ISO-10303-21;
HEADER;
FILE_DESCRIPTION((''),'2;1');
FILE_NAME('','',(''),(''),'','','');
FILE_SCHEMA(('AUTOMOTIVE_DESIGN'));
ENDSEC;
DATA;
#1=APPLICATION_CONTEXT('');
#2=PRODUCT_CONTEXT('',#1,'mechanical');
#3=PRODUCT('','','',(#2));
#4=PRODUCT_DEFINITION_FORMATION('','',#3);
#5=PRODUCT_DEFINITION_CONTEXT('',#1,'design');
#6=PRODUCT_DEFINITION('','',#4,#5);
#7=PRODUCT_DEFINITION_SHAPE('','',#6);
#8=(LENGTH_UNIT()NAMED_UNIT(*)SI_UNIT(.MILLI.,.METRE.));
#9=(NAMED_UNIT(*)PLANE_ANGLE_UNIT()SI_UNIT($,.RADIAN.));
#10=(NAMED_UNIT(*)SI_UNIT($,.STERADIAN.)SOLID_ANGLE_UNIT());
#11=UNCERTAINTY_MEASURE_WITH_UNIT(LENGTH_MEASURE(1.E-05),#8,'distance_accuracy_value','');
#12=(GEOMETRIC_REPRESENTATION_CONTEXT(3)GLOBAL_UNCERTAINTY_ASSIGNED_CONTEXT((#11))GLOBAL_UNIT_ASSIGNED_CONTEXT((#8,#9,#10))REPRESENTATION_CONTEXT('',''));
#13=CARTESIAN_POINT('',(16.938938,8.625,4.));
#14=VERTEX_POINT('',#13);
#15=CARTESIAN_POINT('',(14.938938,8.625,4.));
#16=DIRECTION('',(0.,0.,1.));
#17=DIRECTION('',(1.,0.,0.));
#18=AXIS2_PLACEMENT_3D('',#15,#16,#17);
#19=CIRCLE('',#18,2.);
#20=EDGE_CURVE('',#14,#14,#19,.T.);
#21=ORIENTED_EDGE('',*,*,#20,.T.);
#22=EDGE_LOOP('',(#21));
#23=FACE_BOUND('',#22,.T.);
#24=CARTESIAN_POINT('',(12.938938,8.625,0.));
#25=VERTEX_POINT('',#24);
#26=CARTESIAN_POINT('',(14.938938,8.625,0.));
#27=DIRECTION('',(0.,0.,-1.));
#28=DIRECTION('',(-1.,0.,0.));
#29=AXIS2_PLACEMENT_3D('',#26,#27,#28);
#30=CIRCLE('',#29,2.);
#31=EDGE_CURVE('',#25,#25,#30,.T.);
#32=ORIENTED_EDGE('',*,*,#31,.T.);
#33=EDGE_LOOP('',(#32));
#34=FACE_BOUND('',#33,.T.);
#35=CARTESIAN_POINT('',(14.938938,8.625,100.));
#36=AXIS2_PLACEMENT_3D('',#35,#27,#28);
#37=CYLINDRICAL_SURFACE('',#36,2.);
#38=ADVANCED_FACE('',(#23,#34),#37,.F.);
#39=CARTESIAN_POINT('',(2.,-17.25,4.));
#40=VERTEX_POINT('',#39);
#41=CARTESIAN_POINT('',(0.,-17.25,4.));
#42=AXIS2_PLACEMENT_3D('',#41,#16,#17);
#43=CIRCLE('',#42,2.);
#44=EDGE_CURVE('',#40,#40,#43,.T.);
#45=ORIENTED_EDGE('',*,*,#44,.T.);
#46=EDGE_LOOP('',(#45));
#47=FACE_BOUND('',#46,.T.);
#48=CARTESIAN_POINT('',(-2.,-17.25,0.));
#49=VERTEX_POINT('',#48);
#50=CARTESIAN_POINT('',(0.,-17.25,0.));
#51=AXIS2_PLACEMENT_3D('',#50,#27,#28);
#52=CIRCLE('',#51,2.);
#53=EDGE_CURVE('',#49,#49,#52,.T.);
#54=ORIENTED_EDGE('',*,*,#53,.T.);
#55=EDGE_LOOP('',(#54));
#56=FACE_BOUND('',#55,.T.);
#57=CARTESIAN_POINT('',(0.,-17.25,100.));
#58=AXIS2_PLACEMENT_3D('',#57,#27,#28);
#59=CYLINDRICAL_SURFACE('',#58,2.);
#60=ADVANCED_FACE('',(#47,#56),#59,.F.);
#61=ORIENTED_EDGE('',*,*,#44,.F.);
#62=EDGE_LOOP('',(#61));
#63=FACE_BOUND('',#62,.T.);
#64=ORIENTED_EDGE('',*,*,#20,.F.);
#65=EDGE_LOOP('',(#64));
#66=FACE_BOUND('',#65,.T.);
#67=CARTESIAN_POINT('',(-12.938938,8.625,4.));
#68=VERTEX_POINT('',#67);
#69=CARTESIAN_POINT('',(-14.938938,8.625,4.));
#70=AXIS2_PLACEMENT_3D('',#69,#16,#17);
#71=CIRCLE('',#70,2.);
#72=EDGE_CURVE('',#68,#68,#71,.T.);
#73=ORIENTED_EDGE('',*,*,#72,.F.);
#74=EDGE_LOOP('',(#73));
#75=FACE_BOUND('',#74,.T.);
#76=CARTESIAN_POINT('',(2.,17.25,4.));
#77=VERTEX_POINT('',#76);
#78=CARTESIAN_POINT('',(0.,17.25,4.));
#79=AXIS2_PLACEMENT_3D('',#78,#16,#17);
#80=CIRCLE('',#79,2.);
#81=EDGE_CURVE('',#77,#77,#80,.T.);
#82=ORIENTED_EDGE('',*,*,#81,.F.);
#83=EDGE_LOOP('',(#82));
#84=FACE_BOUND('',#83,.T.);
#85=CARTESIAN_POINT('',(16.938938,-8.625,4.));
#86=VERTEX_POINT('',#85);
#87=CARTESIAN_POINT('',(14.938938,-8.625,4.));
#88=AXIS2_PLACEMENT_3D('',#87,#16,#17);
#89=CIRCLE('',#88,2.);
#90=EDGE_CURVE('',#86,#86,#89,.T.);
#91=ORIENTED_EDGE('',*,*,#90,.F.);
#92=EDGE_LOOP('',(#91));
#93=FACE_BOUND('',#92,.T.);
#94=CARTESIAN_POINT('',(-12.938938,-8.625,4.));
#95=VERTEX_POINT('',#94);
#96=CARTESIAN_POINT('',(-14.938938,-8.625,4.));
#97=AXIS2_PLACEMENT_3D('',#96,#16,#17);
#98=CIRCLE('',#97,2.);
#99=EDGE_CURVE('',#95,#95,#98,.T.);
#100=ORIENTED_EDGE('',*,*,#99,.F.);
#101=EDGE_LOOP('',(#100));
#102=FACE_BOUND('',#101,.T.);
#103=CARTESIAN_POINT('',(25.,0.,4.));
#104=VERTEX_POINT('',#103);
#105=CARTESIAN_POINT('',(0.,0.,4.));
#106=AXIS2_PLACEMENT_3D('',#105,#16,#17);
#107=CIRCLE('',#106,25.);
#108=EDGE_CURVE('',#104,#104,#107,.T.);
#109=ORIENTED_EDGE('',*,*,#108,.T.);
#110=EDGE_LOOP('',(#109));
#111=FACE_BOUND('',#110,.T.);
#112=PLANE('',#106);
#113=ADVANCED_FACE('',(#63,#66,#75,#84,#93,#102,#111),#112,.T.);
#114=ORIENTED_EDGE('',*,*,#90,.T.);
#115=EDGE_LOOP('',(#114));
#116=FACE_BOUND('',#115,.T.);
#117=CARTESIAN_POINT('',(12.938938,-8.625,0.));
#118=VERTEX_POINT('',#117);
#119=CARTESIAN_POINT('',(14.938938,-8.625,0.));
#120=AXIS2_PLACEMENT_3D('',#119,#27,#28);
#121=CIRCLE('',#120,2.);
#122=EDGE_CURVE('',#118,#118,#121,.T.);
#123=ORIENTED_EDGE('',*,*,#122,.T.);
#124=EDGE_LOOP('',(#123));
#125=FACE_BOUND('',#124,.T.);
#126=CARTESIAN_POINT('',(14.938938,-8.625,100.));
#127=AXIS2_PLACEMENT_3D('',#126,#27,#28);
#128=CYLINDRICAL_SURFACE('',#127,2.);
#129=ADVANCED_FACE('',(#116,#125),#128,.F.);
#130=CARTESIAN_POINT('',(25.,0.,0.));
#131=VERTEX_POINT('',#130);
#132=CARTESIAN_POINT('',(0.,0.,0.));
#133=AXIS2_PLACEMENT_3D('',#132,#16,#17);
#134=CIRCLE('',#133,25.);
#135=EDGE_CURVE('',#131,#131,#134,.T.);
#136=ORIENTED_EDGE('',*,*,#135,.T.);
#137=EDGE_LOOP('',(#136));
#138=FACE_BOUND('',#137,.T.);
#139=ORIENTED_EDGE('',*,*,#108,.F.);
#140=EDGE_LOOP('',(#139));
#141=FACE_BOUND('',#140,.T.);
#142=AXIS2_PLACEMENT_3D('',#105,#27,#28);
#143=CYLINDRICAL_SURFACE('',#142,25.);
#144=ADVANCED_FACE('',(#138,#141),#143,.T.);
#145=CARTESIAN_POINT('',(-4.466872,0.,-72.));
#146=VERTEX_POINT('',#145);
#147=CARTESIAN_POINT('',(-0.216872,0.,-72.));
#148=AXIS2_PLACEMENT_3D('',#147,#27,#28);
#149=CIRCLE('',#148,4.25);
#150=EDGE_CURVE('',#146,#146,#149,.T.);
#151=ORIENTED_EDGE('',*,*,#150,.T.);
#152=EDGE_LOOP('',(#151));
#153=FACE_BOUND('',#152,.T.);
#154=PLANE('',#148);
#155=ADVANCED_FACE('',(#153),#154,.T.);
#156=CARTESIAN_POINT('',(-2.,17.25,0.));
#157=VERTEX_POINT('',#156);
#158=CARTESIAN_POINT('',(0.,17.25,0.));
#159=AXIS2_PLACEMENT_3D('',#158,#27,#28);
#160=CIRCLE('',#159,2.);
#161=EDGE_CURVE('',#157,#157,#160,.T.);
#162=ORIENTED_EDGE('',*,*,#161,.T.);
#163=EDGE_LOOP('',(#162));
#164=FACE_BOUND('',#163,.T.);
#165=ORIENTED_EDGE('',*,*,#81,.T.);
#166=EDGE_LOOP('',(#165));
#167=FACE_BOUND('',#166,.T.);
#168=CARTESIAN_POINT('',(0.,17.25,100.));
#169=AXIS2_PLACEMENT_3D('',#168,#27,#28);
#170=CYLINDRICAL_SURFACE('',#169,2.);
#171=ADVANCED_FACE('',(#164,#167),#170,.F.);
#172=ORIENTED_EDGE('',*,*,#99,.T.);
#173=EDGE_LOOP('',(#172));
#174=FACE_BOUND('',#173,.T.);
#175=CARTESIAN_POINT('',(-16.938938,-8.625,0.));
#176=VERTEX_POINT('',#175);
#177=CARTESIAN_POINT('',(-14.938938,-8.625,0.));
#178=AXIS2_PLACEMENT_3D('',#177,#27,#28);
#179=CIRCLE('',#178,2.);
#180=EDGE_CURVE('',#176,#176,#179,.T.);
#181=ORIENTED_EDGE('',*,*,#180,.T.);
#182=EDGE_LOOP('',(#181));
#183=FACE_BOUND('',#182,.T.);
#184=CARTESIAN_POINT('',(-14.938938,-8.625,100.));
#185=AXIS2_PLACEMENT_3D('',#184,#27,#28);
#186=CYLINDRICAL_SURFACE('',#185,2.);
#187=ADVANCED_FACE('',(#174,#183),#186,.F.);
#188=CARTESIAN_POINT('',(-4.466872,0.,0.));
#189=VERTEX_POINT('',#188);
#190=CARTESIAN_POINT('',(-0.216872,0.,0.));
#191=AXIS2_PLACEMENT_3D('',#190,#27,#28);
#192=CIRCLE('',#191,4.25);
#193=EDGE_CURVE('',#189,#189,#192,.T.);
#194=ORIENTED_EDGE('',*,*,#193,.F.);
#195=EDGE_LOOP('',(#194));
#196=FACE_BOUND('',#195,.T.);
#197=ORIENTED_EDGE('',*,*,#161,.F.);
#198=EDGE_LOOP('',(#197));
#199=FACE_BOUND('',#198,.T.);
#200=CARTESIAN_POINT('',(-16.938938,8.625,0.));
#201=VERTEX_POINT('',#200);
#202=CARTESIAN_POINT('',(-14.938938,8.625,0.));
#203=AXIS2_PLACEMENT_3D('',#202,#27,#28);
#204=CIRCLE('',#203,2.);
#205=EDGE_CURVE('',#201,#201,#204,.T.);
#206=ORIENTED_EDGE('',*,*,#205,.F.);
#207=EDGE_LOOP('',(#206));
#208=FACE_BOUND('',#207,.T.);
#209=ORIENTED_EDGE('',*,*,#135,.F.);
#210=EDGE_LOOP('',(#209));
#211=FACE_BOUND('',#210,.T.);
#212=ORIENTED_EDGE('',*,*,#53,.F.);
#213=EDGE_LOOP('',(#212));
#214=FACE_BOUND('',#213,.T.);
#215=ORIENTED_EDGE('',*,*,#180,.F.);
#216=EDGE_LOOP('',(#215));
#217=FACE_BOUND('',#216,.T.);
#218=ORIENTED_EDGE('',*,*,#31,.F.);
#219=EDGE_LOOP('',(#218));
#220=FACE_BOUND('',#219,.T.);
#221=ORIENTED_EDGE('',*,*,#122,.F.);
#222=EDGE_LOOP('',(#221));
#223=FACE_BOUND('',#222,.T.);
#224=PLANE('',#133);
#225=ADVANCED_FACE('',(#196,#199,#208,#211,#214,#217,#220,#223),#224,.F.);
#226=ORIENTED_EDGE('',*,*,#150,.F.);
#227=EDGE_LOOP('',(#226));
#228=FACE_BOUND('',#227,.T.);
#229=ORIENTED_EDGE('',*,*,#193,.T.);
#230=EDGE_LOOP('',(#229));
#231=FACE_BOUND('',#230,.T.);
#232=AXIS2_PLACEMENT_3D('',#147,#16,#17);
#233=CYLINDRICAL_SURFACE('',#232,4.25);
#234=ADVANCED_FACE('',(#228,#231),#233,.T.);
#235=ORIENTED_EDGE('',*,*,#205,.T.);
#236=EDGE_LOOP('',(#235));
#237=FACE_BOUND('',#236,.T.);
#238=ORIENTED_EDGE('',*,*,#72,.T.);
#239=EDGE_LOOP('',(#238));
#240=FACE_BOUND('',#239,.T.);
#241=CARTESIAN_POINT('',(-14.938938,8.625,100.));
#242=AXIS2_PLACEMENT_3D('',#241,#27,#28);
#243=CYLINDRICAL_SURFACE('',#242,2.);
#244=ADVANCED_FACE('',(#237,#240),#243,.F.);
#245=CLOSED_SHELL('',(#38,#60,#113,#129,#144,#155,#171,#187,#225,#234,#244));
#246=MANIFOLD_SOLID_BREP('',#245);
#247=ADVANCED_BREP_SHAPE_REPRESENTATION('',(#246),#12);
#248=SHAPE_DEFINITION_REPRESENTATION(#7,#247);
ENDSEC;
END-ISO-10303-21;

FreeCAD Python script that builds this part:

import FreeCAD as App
import Part
import Sketcher
from FreeCAD import Vector
Q = App.Units.Quantity

doc = App.newDocument("Part")
body = doc.addObject("PartDesign::Body", "Body")

sketch1 = body.newObject("Sketcher::SketchObject", "Sketch")
sketch1.AttachmentSupport = (doc.getObject("XY_Plane"), [""])
sketch1.MapMode = "FlatFace"
sketch1.addGeometry(Part.Circle(Vector(0, 0, 0), Vector(0, 0, 1), 25), False)
sketch1.addConstraint(Sketcher.Constraint("Coincident", 0, 3, -1, 1))
sketch1.addConstraint(Sketcher.Constraint("Diameter", 0, Q("50 mm")))
pad1 = body.newObject("PartDesign::Pad", "Pad")
pad1.Profile = sketch1
pad1.Length = 4

sketch2 = body.newObject("Sketcher::SketchObject", "Sketch001")
sketch2.AttachmentSupport = (doc.getObject("XY_Plane"), [""])
sketch2.MapMode = "FlatFace"
sketch2.addGeometry(Part.Circle(Vector(-0.216872, 0, 0), Vector(0, 0, 1), 4.25), False)
sketch2.addConstraint(Sketcher.Constraint("PointOnObject", 0, 3, -1))
sketch2.addConstraint(Sketcher.Constraint("Diameter", 0, Q("8.5 mm")))
sketch2.addConstraint(Sketcher.Constraint("DistanceX", 0, 3, -1, 1, Q("0.216872 mm")))
pad2 = body.newObject("PartDesign::Pad", "Pad001")
pad2.Profile = sketch2
pad2.Length = 72
pad2.Reversed = True

sketch3 = body.newObject("Sketcher::SketchObject", "Sketch002")
sketch3.AttachmentSupport = (doc.getObject("XY_Plane"), [""])
sketch3.MapMode = "FlatFace"
sketch3.addGeometry(Part.Circle(Vector(0, 17.25, 0), Vector(0, 0, 1), 2), False)
sketch3.addGeometry(Part.Circle(Vector(-14.938938, 8.625, 0), Vector(0, 0, 1), 2), False)
sketch3.addGeometry(Part.Circle(Vector(-14.938938, -8.625, 0), Vector(0, 0, 1), 2), False)
sketch3.addGeometry(Part.Circle(Vector(0, -17.25, 0), Vector(0, 0, 1), 2), False)
sketch3.addGeometry(Part.Circle(Vector(14.938938, -8.625, 0), Vector(0, 0, 1), 2), False)
sketch3.addGeometry(Part.Circle(Vector(14.938938, 8.625, 0), Vector(0, 0, 1), 2), False)
sketch3.addConstraint(Sketcher.Constraint("Equal", 0, 1))
sketch3.addConstraint(Sketcher.Constraint("Equal", 1, 2))
sketch3.addConstraint(Sketcher.Constraint("Equal", 2, 3))
sketch3.addConstraint(Sketcher.Constraint("Equal", 3, 4))
sketch3.addConstraint(Sketcher.Constraint("Equal", 4, 5))
sketch3.addConstraint(Sketcher.Constraint("Symmetric", 0, 3, 3, 3, -1, 1))
sketch3.addConstraint(Sketcher.Constraint("Symmetric", 1, 3, 4, 3, -1, 1))
sketch3.addConstraint(Sketcher.Constraint("Symmetric", 2, 3, 5, 3, -1, 1))
sketch3.addConstraint(Sketcher.Constraint("Symmetric", 2, 3, 4, 3, -2))
sketch3.addConstraint(Sketcher.Constraint("PointOnObject", 0, 3, -2))
sketch3.addConstraint(Sketcher.Constraint("Diameter", 0, Q("4 mm")))
sketch3.addConstraint(Sketcher.Constraint("DistanceY", 3, 3, 0, 3, Q("34.5 mm")))
sketch3.addConstraint(Sketcher.Constraint("DistanceY", 2, 3, 1, 3, Q("17.25 mm")))
sketch3.addConstraint(Sketcher.Constraint("DistanceX", 1, 3, -1, 1, Q("14.938938 mm")))
pocket1 = body.newObject("PartDesign::Pocket", "Pocket")
pocket1.Profile = sketch3
pocket1.Length = 100
pocket1.Reversed = True

doc.recompute()
